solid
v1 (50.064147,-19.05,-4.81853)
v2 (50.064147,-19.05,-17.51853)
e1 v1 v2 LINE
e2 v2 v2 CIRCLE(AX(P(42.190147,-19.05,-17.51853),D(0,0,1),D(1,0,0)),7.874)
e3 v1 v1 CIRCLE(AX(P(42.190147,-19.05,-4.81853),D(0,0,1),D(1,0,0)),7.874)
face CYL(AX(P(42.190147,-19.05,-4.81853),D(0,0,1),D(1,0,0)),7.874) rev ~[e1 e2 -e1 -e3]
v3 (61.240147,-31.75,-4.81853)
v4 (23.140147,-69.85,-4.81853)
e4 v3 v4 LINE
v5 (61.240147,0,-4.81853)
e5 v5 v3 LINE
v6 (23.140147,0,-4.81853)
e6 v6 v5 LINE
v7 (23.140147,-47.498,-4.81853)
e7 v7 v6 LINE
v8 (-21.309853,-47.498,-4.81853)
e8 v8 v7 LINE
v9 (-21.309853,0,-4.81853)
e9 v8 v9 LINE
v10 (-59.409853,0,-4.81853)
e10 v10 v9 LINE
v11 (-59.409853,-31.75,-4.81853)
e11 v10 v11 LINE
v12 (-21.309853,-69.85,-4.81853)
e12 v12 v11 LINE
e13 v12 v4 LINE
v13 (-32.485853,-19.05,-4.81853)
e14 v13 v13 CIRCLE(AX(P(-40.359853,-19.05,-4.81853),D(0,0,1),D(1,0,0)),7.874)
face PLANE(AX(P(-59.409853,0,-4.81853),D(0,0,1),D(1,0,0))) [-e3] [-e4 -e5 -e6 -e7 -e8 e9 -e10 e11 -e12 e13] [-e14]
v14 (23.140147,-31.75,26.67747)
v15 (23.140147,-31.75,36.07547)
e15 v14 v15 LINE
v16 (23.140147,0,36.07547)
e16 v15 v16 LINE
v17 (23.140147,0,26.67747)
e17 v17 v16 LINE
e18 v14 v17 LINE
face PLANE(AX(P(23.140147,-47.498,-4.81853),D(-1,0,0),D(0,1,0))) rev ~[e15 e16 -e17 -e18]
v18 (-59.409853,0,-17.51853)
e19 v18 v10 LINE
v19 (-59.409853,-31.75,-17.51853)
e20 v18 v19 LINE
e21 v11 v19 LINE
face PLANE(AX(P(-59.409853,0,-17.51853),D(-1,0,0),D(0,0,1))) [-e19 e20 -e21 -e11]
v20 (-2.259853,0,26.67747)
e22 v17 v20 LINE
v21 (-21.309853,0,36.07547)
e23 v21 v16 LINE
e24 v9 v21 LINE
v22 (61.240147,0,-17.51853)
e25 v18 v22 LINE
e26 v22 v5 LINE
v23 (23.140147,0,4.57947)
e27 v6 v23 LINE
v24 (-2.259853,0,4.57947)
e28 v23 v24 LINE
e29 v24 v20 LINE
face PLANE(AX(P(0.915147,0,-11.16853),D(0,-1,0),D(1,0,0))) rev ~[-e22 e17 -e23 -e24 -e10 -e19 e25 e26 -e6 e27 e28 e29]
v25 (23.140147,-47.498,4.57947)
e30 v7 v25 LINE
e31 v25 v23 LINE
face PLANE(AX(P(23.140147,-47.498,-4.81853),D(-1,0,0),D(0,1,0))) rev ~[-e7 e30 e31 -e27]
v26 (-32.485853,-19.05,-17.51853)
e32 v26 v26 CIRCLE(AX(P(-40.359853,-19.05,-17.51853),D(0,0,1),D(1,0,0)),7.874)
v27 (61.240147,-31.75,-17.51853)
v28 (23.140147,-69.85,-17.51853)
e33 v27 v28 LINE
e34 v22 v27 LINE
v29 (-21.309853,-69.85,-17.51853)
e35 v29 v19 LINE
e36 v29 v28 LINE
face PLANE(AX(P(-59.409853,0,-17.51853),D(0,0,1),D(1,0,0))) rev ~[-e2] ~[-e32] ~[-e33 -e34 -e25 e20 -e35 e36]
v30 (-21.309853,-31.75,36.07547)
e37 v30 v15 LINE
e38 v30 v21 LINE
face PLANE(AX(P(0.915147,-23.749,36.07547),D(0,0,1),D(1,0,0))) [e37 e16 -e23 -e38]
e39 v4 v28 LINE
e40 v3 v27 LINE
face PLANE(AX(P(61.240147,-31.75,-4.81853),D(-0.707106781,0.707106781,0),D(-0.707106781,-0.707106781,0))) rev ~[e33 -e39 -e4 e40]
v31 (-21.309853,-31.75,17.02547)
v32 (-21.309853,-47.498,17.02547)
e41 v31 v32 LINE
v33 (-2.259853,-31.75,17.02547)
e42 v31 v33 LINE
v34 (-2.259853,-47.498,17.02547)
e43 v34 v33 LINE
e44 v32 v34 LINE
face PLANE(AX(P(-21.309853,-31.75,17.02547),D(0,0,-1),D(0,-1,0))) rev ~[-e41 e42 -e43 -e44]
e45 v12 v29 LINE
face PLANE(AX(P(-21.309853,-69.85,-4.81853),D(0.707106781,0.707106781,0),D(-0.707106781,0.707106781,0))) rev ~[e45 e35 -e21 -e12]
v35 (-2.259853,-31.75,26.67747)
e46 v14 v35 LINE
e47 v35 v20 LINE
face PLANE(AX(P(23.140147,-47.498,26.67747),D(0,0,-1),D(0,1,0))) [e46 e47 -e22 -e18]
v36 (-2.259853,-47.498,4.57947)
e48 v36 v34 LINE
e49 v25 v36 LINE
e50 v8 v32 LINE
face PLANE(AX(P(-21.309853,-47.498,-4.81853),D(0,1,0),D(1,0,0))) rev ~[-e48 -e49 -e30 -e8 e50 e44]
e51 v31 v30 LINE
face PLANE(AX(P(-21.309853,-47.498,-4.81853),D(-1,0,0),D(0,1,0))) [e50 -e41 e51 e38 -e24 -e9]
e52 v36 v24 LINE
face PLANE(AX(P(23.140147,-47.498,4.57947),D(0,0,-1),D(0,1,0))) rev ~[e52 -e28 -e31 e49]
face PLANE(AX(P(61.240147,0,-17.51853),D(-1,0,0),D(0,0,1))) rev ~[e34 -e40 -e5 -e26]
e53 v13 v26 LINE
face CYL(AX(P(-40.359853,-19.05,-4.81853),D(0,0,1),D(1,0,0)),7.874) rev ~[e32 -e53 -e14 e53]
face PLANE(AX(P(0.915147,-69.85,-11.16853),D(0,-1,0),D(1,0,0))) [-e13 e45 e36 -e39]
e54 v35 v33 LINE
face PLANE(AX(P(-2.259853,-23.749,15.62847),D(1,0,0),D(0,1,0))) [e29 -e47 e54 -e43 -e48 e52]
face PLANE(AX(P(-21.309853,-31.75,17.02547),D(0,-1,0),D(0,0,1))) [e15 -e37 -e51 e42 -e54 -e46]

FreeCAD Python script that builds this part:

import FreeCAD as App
import Part
import Sketcher
from FreeCAD import Vector
Q = App.Units.Quantity

doc = App.newDocument("Part")
body = doc.addObject("PartDesign::Body", "Body")

sketch1 = body.newObject("Sketcher::SketchObject", "Sketch")
sketch1.AttachmentSupport = (doc.getObject("XZ_Plane"), [""])
sketch1.MapMode = "FlatFace"
sketch1.addGeometry([
    Part.LineSegment(Vector(-59, -5, 0), Vector(-59, -18, 0)),
    Part.LineSegment(Vector(-59, -18, 0), Vector(61, -18, 0)),
    Part.LineSegment(Vector(61, -18, 0), Vector(61, -5, 0)),
    Part.LineSegment(Vector(61, -5, 0), Vector(-59, -5, 0)),
], False)
sketch1.addConstraint([
    Sketcher.Constraint("Coincident", 0, 2, 1, 1),
    Sketcher.Constraint("Coincident", 1, 2, 2, 1),
    Sketcher.Constraint("Coincident", 2, 2, 3, 1),
    Sketcher.Constraint("Coincident", 3, 2, 0, 1),
    Sketcher.Constraint("Vertical", 0),
    Sketcher.Constraint("Horizontal", 1),
    Sketcher.Constraint("Vertical", 2),
    Sketcher.Constraint("Horizontal", 3),
    Sketcher.Constraint("DistanceY", 0, 2, 0, 1, Q("0.5 in")),
    Sketcher.Constraint("DistanceX", 1, 1, 1, 2, Q("4.75 in")),
    Sketcher.Constraint("DistanceY", 0, 2, -1, 1, Q("17.51853 mm")),
    Sketcher.Constraint("DistanceX", 0, 2, -1, 1, Q("59.409853 mm")),
])
pad1 = body.newObject("PartDesign::Pad", "Pad")
pad1.Profile = sketch1
pad1.Length = Q("2.75 in")

sketch2 = body.newObject("Sketcher::SketchObject", "Sketch001")
sketch2.AttachmentSupport = (doc.getObject("XY_Plane"), [""])
sketch2.MapMode = "FlatFace"
sketch2.AttachmentOffset = App.Placement(Vector(0, 0, -4.81853), App.Rotation())
sketch2.addGeometry([
    Part.Circle(Vector(42, -19, 0), Vector(0, 0, 1), 8),
    Part.Circle(Vector(-40, -19, 0), Vector(0, 0, 1), 8),
], False)
sketch2.addConstraint([
    Sketcher.Constraint("Equal", 0, 1),
    Sketcher.Constraint("Horizontal", 0, 3, 1, 3),
    Sketcher.Constraint("Diameter", 0, Q("0.62 in")),
    Sketcher.Constraint("DistanceY", 0, 3, -1, 1, Q("0.75 in")),
    Sketcher.Constraint("DistanceX", 1, 3, 0, 3, Q("3.25 in")),
    Sketcher.Constraint("DistanceX", -1, 1, 0, 3, Q("42.190147 mm")),
])
pocket1 = body.newObject("PartDesign::Pocket", "Pocket")
pocket1.Profile = sketch2
pocket1.Length = Q("0.62 in")

sketch3 = body.newObject("Sketcher::SketchObject", "Sketch002")
sketch3.AttachmentSupport = (doc.getObject("XY_Plane"), [""])
sketch3.MapMode = "FlatFace"
sketch3.AttachmentOffset = App.Placement(Vector(0, 0, -4.81853), App.Rotation())
sketch3.addGeometry([
    Part.LineSegment(Vector(-59, -70, 0), Vector(-21, -70, 0)),
    Part.LineSegment(Vector(-21, -70, 0), Vector(-59, -32, 0)),
    Part.LineSegment(Vector(-59, -32, 0), Vector(-59, -70, 0)),
    Part.LineSegment(Vector(61, -70, 0), Vector(61, -32, 0)),
    Part.LineSegment(Vector(61, -32, 0), Vector(23, -70, 0)),
    Part.LineSegment(Vector(23, -70, 0), Vector(61, -70, 0)),
], False)
sketch3.addConstraint([
    Sketcher.Constraint("Coincident", 0, 2, 1, 1),
    Sketcher.Constraint("Coincident", 1, 2, 2, 1),
    Sketcher.Constraint("Coincident", 2, 2, 0, 1),
    Sketcher.Constraint("Coincident", 3, 2, 4, 1),
    Sketcher.Constraint("Coincident", 4, 2, 5, 1),
    Sketcher.Constraint("Coincident", 5, 2, 3, 1),
    Sketcher.Constraint("Horizontal", 0),
    Sketcher.Constraint("Vertical", 2),
    Sketcher.Constraint("Vertical", 3),
    Sketcher.Constraint("Horizontal", 5),
    Sketcher.Constraint("Perpendicular", 1, 4),
    Sketcher.Constraint("Horizontal", 1, 2, 3, 2),
    Sketcher.Constraint("Horizontal", 2, 2, 4, 2),
    Sketcher.Constraint("Equal", 0, 5),
    Sketcher.Constraint("DistanceX", 0, 1, 0, 2, Q("1.5 in")),
    Sketcher.Constraint("DistanceY", 0, 2, -1, 1, Q("2.75 in")),
    Sketcher.Constraint("DistanceX", 0, 2, 3, 2, Q("3.25 in")),
    Sketcher.Constraint("DistanceX", 0, 2, -1, 1, Q("21.309853 mm")),
])
pocket2 = body.newObject("PartDesign::Pocket", "Pocket001")
pocket2.Profile = sketch3
pocket2.Length = Q("0.5 in")

sketch4 = body.newObject("Sketcher::SketchObject", "Sketch003")
sketch4.AttachmentSupport = (doc.getObject("XY_Plane"), [""])
sketch4.MapMode = "FlatFace"
sketch4.AttachmentOffset = App.Placement(Vector(0, 0, -4.81853), App.Rotation())
sketch4.addGeometry([
    Part.LineSegment(Vector(-21, 0, 0), Vector(-21, -47, 0)),
    Part.LineSegment(Vector(-21, -47, 0), Vector(23, -47, 0)),
    Part.LineSegment(Vector(23, -47, 0), Vector(23, 0, 0)),
    Part.LineSegment(Vector(23, 0, 0), Vector(-21, 0, 0)),
], False)
sketch4.addConstraint([
    Sketcher.Constraint("Coincident", 0, 2, 1, 1),
    Sketcher.Constraint("Coincident", 1, 2, 2, 1),
    Sketcher.Constraint("Coincident", 2, 2, 3, 1),
    Sketcher.Constraint("Coincident", 3, 2, 0, 1),
    Sketcher.Constraint("Vertical", 0),
    Sketcher.Constraint("Horizontal", 1),
    Sketcher.Constraint("Vertical", 2),
    Sketcher.Constraint("Horizontal", 3),
    Sketcher.Constraint("PointOnObject", 2, 2, -1),
    Sketcher.Constraint("DistanceX", 1, 1, 1, 2, Q("1.75 in")),
    Sketcher.Constraint("DistanceY", 0, 2, 0, 1, Q("1.87 in")),
    Sketcher.Constraint("DistanceX", 0, 2, -1, 1, Q("21.309853 mm")),
])
pad2 = body.newObject("PartDesign::Pad", "Pad001")
pad2.Profile = sketch4
pad2.Length = Q("1.61 in")

sketch5 = body.newObject("Sketcher::SketchObject", "Sketch004")
sketch5.AttachmentSupport = (doc.getObject("YZ_Plane"), [""])
sketch5.MapMode = "FlatFace"
sketch5.AttachmentOffset = App.Placement(Vector(0, 0, 23.140147), App.Rotation())
sketch5.addGeometry([
    Part.LineSegment(Vector(-47, 27, 0), Vector(-47, 5, 0)),
    Part.LineSegment(Vector(-47, 5, 0), Vector(0, 5, 0)),
    Part.LineSegment(Vector(0, 5, 0), Vector(0, 27, 0)),
    Part.LineSegment(Vector(0, 27, 0), Vector(-47, 27, 0)),
], False)
sketch5.addConstraint([
    Sketcher.Constraint("Coincident", 0, 2, 1, 1),
    Sketcher.Constraint("Coincident", 1, 2, 2, 1),
    Sketcher.Constraint("Coincident", 2, 2, 3, 1),
    Sketcher.Constraint("Coincident", 3, 2, 0, 1),
    Sketcher.Constraint("Vertical", 0),
    Sketcher.Constraint("Horizontal", 1),
    Sketcher.Constraint("Vertical", 2),
    Sketcher.Constraint("Horizontal", 3),
    Sketcher.Constraint("PointOnObject", 1, 2, -2),
    Sketcher.Constraint("DistanceX", 1, 1, 1, 2, Q("1.87 in")),
    Sketcher.Constraint("DistanceY", 0, 2, 0, 1, Q("0.87 in")),
    Sketcher.Constraint("DistanceY", -1, 1, 0, 2, Q("4.57947 mm")),
])
pocket3 = body.newObject("PartDesign::Pocket", "Pocket002")
pocket3.Profile = sketch5
pocket3.Length = Q("1 in")

sketch6 = body.newObject("Sketcher::SketchObject", "Sketch005")
sketch6.AttachmentSupport = (doc.getObject("YZ_Plane"), [""])
sketch6.MapMode = "FlatFace"
sketch6.AttachmentOffset = App.Placement(Vector(0, 0, -21.309853), App.Rotation())
sketch6.addGeometry([
    Part.LineSegment(Vector(-32, 36, 0), Vector(-32, 17, 0)),
    Part.LineSegment(Vector(-32, 17, 0), Vector(-47, 17, 0)),
    Part.LineSegment(Vector(-47, 17, 0), Vector(-47, 36, 0)),
    Part.LineSegment(Vector(-47, 36, 0), Vector(-32, 36, 0)),
], False)
sketch6.addConstraint([
    Sketcher.Constraint("Coincident", 0, 2, 1, 1),
    Sketcher.Constraint("Coincident", 1, 2, 2, 1),
    Sketcher.Constraint("Coincident", 2, 2, 3, 1),
    Sketcher.Constraint("Coincident", 3, 2, 0, 1),
    Sketcher.Constraint("Vertical", 0),
    Sketcher.Constraint("Horizontal", 1),
    Sketcher.Constraint("Vertical", 2),
    Sketcher.Constraint("Horizontal", 3),
    Sketcher.Constraint("DistanceX", 1, 2, 1, 1, Q("0.62 in")),
    Sketcher.Constraint("DistanceY", 0, 2, 0, 1, Q("0.75 in")),
    Sketcher.Constraint("DistanceX", 0, 2, -1, 1, Q("1.25 in")),
    Sketcher.Constraint("DistanceY", -1, 1, 0, 2, Q("17.02547 mm")),
])
pocket4 = body.newObject("PartDesign::Pocket", "Pocket003")
pocket4.Profile = sketch6
pocket4.Length = Q("1.75 in")
pocket4.Reversed = True

doc.recompute()
